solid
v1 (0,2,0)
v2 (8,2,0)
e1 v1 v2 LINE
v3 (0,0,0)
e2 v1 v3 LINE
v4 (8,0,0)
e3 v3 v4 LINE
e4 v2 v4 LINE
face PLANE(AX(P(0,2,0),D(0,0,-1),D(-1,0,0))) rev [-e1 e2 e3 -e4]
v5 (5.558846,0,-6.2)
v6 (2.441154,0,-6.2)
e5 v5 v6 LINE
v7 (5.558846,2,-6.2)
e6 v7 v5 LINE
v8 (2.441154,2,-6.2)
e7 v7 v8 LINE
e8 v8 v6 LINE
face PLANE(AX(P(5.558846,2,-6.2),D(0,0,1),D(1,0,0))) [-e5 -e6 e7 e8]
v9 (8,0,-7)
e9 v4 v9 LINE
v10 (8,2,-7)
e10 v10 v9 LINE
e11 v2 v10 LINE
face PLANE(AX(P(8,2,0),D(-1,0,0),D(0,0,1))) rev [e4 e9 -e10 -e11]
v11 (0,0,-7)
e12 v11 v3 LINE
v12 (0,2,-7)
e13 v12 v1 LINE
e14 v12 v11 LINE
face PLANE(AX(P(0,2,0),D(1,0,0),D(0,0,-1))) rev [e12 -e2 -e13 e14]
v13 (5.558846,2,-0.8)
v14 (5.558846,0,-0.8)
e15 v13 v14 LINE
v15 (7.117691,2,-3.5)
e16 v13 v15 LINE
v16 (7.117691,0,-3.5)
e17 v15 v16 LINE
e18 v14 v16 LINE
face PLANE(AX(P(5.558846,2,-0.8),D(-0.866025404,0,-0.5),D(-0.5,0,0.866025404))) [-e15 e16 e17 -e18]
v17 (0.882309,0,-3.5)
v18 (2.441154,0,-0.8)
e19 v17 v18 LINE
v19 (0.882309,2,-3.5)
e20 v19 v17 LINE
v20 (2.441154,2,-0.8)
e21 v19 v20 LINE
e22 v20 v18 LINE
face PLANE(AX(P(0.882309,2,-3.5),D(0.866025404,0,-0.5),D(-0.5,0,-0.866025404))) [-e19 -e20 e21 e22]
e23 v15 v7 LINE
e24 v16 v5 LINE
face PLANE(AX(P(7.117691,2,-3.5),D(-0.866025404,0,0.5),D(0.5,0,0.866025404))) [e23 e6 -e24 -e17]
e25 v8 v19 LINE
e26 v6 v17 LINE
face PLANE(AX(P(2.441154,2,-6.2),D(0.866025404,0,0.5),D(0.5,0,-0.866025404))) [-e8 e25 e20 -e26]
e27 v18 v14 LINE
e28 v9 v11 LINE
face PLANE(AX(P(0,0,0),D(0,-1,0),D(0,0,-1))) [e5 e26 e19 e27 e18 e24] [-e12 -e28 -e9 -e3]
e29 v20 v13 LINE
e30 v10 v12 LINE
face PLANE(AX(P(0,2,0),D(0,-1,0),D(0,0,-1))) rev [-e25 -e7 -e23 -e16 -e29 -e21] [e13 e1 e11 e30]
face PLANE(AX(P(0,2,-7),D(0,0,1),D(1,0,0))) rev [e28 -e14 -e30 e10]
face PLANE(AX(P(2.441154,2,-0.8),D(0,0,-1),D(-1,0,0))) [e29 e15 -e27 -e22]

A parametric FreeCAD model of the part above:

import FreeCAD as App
import Part
import Sketcher

V = App.Vector
Q = App.Units.Quantity


def add_polygon(sketch, points):
    """Adds a closed chain of lines whose ends are joined by coincident constraints."""
    first, n = sketch.GeometryCount, len(points)
    for a, b in zip(points, points[1:] + points[:1]):
        sketch.addGeometry(Part.LineSegment(App.Vector(*a, 0), App.Vector(*b, 0)), False)
    for i in range(n):
        sketch.addConstraint(Sketcher.Constraint("Coincident", first + i, 2, first + (i + 1) % n, 1))

doc = App.newDocument("Part")
body = doc.addObject("PartDesign::Body", "Body")

# Sketch on XZ plane
sketch1 = body.newObject("Sketcher::SketchObject", "Sketch")
sketch1.AttachmentSupport = (doc.getObject("XZ_Plane"), [""])
sketch1.MapMode = "FlatFace"
add_polygon(sketch1, [(0, -7), (0, 0), (8, 0), (8, -7)])  # lines 0-3
add_polygon(sketch1, [(5.558846, -6.2), (7.117691, -3.5), (5.558846, -0.8), (2.441154, -0.8), (0.882309, -3.5), (2.441154, -6.2)])  # lines 4-9
sketch1.addConstraint([
    Sketcher.Constraint("Vertical", 0),
    Sketcher.Constraint("Horizontal", 1),
    Sketcher.Constraint("Vertical", 2),
    Sketcher.Constraint("Horizontal", 3),
    Sketcher.Constraint("Horizontal", 6),
    Sketcher.Constraint("Horizontal", 9),
    Sketcher.Constraint("Coincident", 0, 2, -1, 1),
    Sketcher.Constraint("Parallel", 4, 7),
    Sketcher.Constraint("Parallel", 5, 8),
    Sketcher.Constraint("Horizontal", 4, 2, 7, 2),
    Sketcher.Constraint("Vertical", 6, 2, 8, 2),
    Sketcher.Constraint("Vertical", 5, 2, 9, 2),
    Sketcher.Constraint("DistanceX", 1, 1, 1, 2, Q("8 mm")),
    Sketcher.Constraint("DistanceY", 0, 1, 0, 2, Q("7 mm")),
    Sketcher.Constraint("Angle", 4, Q("60 deg")),
    Sketcher.Constraint("DistanceY", 4, 2, -1, 1, Q("3.5 mm")),
    Sketcher.Constraint("DistanceY", 5, 2, -1, 1, Q("0.8 mm")),
    Sketcher.Constraint("DistanceX", 6, 2, 6, 1, Q("3.117691 mm")),
    Sketcher.Constraint("DistanceX", -1, 1, 4, 2, Q("7.117691 mm")),
])
pad1 = body.newObject("PartDesign::Pad", "Pad")
pad1.Profile = sketch1
pad1.Length = 2
pad1.Reversed = True

doc.recompute()
